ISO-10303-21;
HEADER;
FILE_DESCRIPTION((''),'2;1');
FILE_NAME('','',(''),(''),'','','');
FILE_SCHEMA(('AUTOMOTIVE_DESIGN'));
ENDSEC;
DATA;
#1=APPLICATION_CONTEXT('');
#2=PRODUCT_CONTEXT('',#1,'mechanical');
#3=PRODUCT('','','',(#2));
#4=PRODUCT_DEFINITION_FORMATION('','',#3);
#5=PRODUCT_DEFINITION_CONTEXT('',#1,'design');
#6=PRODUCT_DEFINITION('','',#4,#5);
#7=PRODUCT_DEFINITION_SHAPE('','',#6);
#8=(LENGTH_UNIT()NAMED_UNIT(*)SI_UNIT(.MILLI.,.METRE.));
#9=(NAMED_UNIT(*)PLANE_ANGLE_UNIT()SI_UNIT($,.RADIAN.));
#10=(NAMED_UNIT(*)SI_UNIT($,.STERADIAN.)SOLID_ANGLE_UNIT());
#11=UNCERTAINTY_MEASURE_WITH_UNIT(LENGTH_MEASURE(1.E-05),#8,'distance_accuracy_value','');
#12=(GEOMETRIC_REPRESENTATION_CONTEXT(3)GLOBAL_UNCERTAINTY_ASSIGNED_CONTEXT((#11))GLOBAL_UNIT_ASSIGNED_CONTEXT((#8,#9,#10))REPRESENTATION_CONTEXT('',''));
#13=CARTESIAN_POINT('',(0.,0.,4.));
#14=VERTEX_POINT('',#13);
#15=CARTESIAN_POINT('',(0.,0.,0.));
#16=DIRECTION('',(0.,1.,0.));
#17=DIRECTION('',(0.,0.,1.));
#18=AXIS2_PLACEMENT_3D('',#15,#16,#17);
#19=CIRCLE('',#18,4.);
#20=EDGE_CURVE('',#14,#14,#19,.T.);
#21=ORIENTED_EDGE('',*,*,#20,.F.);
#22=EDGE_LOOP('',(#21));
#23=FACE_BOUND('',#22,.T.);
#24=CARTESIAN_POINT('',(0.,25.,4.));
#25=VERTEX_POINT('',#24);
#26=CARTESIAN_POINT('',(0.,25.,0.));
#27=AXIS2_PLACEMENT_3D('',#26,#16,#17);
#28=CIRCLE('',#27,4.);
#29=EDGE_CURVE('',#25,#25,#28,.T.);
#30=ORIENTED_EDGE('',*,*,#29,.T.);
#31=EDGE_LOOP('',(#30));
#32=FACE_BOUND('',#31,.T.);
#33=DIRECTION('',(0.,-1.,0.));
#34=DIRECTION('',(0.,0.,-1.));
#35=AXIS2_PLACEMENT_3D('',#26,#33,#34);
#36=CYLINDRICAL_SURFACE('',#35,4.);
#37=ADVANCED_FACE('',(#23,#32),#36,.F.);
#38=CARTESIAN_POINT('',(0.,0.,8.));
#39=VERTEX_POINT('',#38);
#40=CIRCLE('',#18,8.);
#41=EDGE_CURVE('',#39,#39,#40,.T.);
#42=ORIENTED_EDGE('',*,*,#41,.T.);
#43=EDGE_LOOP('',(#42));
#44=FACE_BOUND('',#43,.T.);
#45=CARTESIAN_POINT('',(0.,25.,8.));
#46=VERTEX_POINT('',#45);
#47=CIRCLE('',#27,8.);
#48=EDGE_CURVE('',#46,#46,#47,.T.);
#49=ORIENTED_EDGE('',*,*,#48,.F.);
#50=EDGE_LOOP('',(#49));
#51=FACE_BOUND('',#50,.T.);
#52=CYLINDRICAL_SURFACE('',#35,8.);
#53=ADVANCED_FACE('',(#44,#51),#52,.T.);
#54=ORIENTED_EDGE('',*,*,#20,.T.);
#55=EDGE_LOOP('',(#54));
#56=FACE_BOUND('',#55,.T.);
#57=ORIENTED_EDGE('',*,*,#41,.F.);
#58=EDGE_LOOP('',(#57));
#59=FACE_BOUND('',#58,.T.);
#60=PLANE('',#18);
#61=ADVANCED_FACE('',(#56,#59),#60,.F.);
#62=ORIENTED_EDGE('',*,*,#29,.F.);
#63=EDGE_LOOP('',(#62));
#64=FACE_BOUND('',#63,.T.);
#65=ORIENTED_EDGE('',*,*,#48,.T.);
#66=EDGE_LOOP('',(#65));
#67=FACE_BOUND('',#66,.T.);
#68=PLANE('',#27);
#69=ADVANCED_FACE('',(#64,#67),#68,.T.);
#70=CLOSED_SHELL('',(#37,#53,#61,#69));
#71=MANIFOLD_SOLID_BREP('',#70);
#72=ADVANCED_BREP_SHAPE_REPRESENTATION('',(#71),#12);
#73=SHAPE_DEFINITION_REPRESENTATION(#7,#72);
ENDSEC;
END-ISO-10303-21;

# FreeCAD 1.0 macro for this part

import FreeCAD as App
import Part
import Sketcher
from FreeCAD import Vector
Q = App.Units.Quantity

doc = App.newDocument("Part")
body = doc.addObject("PartDesign::Body", "Body")

# Sketch on XZ plane
sketch1 = body.newObject("Sketcher::SketchObject", "Sketch")
sketch1.AttachmentSupport = (doc.getObject("XZ_Plane"), [""])
sketch1.MapMode = "FlatFace"
sketch1.addGeometry([
    Part.Circle(Vector(0, 0, 0), Vector(0, 0, 1), 8),
    Part.Circle(Vector(0, 0, 0), Vector(0, 0, 1), 4),
], False)
sketch1.addConstraint([
    Sketcher.Constraint("Coincident", 0, 3, -1, 1),
    Sketcher.Constraint("Coincident", 1, 3, -1, 1),
    Sketcher.Constraint("Diameter", 0, Q("16 mm")),
    Sketcher.Constraint("Diameter", 1, Q("8 mm")),
])
pad1 = body.newObject("PartDesign::Pad", "Pad")
pad1.Profile = sketch1
pad1.Length = 25
pad1.Reversed = True

doc.recompute()
